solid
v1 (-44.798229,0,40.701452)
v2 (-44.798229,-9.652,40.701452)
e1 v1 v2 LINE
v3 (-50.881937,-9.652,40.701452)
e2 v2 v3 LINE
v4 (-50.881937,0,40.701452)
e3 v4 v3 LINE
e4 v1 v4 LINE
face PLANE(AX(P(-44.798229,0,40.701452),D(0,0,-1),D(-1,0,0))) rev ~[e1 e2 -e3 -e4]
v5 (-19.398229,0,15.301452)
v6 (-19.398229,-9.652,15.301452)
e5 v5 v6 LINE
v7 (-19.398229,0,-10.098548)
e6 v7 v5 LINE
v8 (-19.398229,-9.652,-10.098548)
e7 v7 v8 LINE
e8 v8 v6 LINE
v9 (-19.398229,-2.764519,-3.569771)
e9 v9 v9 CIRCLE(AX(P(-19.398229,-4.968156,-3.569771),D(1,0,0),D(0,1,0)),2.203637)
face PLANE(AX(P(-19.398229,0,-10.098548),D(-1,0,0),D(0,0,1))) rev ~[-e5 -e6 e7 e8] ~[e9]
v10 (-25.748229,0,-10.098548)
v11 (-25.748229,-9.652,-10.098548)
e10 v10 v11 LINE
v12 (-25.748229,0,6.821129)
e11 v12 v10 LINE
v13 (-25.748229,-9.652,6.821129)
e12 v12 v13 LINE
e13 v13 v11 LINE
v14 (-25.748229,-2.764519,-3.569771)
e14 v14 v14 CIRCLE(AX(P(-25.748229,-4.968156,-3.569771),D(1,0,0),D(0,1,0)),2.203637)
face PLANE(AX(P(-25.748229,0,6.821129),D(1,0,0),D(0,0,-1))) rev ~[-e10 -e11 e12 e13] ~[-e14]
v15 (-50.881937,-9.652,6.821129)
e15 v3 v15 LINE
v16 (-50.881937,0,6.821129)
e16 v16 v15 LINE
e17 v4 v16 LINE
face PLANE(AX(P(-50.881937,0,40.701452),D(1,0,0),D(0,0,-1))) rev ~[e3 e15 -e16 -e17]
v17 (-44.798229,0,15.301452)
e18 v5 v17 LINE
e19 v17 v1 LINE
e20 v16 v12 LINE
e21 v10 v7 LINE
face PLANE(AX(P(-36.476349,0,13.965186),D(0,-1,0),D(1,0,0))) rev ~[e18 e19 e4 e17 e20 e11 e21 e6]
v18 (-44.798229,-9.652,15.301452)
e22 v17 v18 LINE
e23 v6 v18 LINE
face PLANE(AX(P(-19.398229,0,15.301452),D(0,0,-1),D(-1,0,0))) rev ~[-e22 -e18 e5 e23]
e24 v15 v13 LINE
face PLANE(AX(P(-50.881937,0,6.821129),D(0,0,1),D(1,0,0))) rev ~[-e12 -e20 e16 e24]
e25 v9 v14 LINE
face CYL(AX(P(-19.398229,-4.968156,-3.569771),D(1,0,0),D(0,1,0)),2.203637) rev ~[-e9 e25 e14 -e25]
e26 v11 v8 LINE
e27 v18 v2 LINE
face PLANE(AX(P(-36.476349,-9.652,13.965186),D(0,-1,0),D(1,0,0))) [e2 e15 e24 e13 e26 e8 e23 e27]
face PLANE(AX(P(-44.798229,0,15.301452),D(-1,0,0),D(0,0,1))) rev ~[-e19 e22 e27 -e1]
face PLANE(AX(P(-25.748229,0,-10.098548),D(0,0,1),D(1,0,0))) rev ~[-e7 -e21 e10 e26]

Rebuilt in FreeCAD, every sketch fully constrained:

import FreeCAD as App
import Part
import Sketcher

V = App.Vector
Q = App.Units.Quantity


def add_polygon(sketch, points):
    """Adds a closed chain of lines whose ends are joined by coincident constraints."""
    first, n = sketch.GeometryCount, len(points)
    for a, b in zip(points, points[1:] + points[:1]):
        sketch.addGeometry(Part.LineSegment(App.Vector(*a, 0), App.Vector(*b, 0)), False)
    for i in range(n):
        sketch.addConstraint(Sketcher.Constraint("Coincident", first + i, 2, first + (i + 1) % n, 1))

doc = App.newDocument("Part")
params = doc.addObject("Spreadsheet::Sheet", "Params")
for row, (alias, value) in enumerate([
    ("sketch1_width", "1 in"),
    ("sketch1_width2", "0.25 in"),
    ("pad1_length", "0.38 in"),
    ("pocket1_length", "1 in"),
], start=1):
    params.set(f"A{row}", alias)
    params.set(f"B{row}", "=" + value)
    params.setAlias(f"B{row}", alias)

body = doc.addObject("PartDesign::Body", "Body")

# Sketch on XZ plane
sketch1 = doc.addObject("Sketcher::SketchObject", "Sketch")
body.addObject(sketch1)
sketch1.AttachmentSupport = (doc.XZ_Plane, [""])
sketch1.MapMode = "FlatFace"
add_polygon(sketch1, [(-45, 15), (-45, 41), (-51, 41), (-51, 7), (-26, 7), (-26, -10), (-19, -10), (-19, 15)])  # lines 0-7
sketch1.addConstraint([
    Sketcher.Constraint("Vertical", 0),
    Sketcher.Constraint("Horizontal", 1),
    Sketcher.Constraint("Vertical", 2),
    Sketcher.Constraint("Horizontal", 3),
    Sketcher.Constraint("Vertical", 4),
    Sketcher.Constraint("Horizontal", 5),
    Sketcher.Constraint("Vertical", 6),
    Sketcher.Constraint("Horizontal", 7),
    Sketcher.Constraint("Equal", 7, 0),
    Sketcher.Constraint("Equal", 0, 6),
    Sketcher.Constraint("DistanceX", 7, 2, 7, 1, Q("1 in")),
    Sketcher.Constraint("DistanceX", 5, 1, 5, 2, Q("0.25 in")),
    Sketcher.Constraint("DistanceX", 1, 2, 1, 1, 6.083708),
    Sketcher.Constraint("DistanceY", 2, 2, 2, 1, 33.880323),
    Sketcher.Constraint("DistanceX", 0, 2, -1, 1, 44.798229),
    Sketcher.Constraint("DistanceY", -1, 1, 2, 2, 6.821129),
])
sketch1.setExpression("Constraints[18]", "Params.sketch1_width")
sketch1.setExpression("Constraints[19]", "Params.sketch1_width2")
pad1 = doc.addObject("PartDesign::Pad", "Pad")
body.addObject(pad1)
pad1.Profile = sketch1
pad1.setExpression("Length", "Params.pad1_length")

# Sketch on YZ plane
sketch2 = doc.addObject("Sketcher::SketchObject", "Sketch001")
body.addObject(sketch2)
sketch2.AttachmentSupport = (doc.YZ_Plane, [""])
sketch2.MapMode = "FlatFace"
sketch2.AttachmentOffset = App.Placement(V(0, 0, -19.398229), App.Rotation())
sketch2.addGeometry(Part.Circle(V(-5, -3.6, 0), V(0, 0, 1), 2.2), False)
sketch2.addConstraint([
    Sketcher.Constraint("Diameter", 0, 4.407274),
    Sketcher.Constraint("DistanceY", 0, 3, -1, 1, 3.569771),
    Sketcher.Constraint("DistanceX", 0, 3, -1, 1, 4.968156),
])
pocket1 = doc.addObject("PartDesign::Pocket", "Pocket")
body.addObject(pocket1)
pocket1.Profile = sketch2
pocket1.setExpression("Length", "Params.pocket1_length")

doc.recompute()
